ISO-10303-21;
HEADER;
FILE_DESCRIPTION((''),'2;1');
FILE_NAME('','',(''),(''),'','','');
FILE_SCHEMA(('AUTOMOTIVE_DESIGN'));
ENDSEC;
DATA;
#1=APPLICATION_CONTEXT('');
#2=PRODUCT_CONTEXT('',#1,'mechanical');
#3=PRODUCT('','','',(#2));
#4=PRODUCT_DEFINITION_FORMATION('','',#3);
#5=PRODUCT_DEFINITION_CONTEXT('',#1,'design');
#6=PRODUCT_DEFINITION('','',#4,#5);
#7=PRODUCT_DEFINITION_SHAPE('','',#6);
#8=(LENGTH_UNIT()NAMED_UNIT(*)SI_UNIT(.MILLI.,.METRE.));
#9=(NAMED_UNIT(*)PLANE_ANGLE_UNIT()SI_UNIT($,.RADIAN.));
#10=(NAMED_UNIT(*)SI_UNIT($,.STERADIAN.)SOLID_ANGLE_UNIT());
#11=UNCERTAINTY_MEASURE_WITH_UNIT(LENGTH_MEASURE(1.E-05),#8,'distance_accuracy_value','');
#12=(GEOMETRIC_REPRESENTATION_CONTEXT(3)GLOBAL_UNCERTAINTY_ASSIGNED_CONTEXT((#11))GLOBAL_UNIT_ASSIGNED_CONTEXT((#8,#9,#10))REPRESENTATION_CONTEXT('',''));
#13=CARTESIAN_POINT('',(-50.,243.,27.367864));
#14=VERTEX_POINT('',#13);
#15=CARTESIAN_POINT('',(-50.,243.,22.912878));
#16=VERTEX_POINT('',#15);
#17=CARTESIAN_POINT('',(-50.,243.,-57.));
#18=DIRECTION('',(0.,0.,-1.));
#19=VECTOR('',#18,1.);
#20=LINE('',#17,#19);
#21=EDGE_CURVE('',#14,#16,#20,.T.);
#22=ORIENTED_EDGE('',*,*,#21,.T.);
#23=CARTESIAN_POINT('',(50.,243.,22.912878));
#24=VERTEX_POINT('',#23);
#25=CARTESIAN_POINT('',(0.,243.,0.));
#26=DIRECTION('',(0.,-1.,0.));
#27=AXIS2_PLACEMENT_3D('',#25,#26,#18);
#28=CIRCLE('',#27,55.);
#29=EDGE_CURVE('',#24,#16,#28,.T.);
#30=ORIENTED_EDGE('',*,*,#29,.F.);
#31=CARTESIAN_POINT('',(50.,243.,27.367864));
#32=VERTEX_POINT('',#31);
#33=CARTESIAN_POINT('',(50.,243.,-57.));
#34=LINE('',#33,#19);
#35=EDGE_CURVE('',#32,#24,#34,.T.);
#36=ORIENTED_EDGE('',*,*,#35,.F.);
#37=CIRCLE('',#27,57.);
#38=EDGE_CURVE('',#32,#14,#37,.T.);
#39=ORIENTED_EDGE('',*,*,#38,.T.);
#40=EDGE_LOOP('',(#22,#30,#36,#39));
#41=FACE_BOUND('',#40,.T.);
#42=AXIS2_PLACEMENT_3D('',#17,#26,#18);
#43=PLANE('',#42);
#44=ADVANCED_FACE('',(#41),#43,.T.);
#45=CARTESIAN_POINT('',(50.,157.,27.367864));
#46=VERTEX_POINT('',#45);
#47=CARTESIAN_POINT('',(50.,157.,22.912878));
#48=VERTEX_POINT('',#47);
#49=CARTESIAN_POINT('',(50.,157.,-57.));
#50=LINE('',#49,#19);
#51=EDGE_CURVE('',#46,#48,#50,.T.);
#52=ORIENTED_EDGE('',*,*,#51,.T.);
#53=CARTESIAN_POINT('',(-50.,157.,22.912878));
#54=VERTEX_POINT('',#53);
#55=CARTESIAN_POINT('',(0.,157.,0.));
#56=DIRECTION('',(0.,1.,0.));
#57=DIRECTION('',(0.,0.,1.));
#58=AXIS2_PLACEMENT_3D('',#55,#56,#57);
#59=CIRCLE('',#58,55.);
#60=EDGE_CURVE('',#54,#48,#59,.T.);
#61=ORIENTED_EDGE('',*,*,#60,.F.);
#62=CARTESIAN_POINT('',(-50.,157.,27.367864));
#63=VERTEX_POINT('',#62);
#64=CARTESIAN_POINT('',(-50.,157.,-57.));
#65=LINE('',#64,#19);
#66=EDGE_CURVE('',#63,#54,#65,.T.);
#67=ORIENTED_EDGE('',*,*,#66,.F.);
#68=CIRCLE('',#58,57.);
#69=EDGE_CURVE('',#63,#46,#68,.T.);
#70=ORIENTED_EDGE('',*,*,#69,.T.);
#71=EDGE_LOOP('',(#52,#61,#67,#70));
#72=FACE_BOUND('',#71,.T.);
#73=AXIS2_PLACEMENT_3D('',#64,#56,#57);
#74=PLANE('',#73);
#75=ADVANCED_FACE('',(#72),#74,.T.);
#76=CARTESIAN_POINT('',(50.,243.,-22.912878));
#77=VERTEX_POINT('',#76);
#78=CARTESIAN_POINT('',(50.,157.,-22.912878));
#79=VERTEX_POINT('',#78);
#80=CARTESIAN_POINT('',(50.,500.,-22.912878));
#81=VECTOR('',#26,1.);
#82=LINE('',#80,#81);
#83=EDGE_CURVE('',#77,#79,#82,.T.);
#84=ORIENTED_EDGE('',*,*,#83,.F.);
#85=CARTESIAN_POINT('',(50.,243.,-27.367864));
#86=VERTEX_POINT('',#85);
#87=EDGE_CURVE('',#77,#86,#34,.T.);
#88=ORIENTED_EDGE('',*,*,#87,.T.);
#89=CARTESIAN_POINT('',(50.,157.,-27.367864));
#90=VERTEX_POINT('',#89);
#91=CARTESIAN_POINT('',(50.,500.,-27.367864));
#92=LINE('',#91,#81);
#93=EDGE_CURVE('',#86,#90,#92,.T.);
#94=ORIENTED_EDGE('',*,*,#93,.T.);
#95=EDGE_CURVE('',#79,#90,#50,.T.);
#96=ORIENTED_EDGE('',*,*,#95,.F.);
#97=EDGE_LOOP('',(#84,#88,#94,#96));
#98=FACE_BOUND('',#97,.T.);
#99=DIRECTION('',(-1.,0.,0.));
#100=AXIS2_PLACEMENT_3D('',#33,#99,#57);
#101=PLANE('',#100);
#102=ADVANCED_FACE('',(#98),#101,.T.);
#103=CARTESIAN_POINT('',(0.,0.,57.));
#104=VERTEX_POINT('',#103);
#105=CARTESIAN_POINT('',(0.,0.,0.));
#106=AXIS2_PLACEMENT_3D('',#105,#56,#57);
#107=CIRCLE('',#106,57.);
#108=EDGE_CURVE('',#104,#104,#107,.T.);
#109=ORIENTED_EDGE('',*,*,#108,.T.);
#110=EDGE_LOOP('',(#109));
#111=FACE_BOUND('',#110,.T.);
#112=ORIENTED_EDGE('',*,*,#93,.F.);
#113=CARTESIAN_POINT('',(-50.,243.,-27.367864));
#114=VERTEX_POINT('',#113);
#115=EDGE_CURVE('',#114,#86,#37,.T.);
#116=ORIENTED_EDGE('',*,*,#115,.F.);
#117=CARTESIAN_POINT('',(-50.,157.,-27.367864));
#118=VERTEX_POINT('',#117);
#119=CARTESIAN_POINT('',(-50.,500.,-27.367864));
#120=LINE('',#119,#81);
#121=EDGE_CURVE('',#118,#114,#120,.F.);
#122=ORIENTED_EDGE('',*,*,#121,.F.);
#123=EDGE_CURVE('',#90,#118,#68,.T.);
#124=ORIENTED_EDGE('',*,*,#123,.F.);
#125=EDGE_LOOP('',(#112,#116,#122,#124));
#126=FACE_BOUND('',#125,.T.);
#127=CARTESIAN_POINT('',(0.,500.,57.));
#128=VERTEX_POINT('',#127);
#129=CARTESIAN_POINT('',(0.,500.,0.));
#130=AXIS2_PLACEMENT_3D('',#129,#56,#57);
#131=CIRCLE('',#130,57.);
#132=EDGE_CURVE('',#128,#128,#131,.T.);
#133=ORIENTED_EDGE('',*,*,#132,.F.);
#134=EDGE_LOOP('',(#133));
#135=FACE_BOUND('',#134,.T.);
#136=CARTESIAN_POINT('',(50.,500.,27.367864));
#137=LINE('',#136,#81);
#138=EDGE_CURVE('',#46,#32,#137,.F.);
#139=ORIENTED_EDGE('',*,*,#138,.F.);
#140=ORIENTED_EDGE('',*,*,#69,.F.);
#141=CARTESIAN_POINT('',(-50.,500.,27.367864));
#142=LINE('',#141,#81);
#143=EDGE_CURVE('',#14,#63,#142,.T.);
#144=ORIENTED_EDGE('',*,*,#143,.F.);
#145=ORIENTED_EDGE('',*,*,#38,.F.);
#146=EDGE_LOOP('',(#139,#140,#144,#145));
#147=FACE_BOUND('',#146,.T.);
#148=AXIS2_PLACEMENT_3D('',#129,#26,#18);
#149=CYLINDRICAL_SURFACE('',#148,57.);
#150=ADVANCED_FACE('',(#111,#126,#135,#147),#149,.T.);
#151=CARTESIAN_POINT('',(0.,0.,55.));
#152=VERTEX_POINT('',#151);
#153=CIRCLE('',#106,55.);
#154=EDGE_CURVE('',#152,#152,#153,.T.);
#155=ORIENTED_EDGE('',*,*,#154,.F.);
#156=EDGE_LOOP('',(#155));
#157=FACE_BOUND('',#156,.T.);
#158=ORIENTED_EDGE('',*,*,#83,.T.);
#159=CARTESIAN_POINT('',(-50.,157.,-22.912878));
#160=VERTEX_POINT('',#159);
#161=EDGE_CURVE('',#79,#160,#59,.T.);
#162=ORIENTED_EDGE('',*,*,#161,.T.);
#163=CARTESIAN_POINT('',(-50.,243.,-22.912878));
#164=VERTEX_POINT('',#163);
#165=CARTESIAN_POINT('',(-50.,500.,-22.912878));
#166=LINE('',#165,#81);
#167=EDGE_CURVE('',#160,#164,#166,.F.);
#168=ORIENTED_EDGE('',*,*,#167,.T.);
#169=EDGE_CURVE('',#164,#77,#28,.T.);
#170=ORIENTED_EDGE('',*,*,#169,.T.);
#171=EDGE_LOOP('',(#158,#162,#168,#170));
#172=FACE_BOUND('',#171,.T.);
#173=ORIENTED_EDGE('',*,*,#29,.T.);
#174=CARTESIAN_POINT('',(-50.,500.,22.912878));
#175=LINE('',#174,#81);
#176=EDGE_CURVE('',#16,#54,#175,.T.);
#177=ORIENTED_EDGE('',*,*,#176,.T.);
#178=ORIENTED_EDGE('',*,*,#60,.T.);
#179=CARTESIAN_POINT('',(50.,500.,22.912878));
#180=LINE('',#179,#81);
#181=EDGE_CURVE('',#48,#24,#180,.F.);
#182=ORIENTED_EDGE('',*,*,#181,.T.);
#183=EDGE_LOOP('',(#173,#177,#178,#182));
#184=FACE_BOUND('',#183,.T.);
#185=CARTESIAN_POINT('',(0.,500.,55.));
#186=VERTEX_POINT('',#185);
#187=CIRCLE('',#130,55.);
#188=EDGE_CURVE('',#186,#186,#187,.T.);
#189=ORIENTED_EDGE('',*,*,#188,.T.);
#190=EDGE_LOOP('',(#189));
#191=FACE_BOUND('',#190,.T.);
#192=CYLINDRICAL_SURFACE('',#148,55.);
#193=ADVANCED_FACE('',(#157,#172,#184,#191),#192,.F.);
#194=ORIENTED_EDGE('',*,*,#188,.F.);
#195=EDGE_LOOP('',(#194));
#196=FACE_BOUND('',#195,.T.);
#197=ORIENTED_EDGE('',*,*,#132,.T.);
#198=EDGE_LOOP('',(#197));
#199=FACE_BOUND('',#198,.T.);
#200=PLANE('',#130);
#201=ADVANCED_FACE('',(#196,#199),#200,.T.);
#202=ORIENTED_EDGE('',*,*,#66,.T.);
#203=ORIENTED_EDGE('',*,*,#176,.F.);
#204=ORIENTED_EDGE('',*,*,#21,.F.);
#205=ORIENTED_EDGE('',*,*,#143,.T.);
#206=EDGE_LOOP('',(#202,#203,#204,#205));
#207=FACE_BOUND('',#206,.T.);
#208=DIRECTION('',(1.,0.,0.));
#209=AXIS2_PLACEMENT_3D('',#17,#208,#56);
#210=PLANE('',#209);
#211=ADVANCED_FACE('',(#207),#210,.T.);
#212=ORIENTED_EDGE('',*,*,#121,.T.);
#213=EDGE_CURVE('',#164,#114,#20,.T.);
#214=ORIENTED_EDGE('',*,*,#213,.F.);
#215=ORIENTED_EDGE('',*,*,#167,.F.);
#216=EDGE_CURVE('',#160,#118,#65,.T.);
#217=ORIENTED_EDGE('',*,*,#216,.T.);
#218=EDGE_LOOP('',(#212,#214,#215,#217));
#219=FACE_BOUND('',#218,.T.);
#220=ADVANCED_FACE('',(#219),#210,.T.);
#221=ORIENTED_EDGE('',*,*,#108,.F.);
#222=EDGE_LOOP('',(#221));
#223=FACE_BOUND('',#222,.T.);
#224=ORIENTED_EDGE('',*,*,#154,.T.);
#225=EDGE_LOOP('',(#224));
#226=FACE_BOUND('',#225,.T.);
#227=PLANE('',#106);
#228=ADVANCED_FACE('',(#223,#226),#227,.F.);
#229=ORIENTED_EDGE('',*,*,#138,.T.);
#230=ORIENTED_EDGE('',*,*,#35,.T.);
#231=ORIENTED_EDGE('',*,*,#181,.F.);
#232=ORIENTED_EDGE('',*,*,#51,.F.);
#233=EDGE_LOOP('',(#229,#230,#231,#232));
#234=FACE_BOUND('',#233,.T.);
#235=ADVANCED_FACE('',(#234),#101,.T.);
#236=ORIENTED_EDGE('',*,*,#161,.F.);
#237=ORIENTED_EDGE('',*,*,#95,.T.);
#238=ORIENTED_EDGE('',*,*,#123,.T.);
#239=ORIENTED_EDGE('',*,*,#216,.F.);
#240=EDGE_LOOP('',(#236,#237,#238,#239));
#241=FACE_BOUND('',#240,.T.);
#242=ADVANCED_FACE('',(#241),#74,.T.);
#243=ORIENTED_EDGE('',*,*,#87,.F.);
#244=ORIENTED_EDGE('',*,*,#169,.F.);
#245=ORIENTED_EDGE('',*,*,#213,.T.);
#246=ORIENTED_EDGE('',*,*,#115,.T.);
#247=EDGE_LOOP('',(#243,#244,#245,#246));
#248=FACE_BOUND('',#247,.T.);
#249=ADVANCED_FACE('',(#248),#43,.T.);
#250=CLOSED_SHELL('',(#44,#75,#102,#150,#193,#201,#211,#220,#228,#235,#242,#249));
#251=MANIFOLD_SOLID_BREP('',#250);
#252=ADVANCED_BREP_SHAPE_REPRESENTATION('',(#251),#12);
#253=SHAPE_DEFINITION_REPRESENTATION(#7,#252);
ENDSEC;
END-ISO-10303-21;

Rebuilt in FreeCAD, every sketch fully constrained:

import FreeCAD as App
import Part
import Sketcher
Q = App.Units.Quantity


def add_polygon(sketch, points):
    """Adds a closed chain of lines whose ends are joined by coincident constraints."""
    first, n = sketch.GeometryCount, len(points)
    for a, b in zip(points, points[1:] + points[:1]):
        sketch.addGeometry(Part.LineSegment(App.Vector(*a, 0), App.Vector(*b, 0)), False)
    for i in range(n):
        sketch.addConstraint(Sketcher.Constraint("Coincident", first + i, 2, first + (i + 1) % n, 1))

doc = App.newDocument("Part")
body = doc.addObject("PartDesign::Body", "Body")

# Sketch on XZ plane
sketch1 = body.newObject("Sketcher::SketchObject", "Sketch")
sketch1.AttachmentSupport = (doc.getObject("XZ_Plane"), [""])
sketch1.MapMode = "FlatFace"
sketch1.addGeometry(Part.Circle(App.Vector(0, 0, 0), App.Vector(0, 0, 1), 57), False)
sketch1.addGeometry(Part.Circle(App.Vector(0, 0, 0), App.Vector(0, 0, 1), 55), False)
sketch1.addConstraint(Sketcher.Constraint("Coincident", 0, 3, -1, 1))
sketch1.addConstraint(Sketcher.Constraint("Coincident", 1, 3, -1, 1))
sketch1.addConstraint(Sketcher.Constraint("Diameter", 0, Q("114 mm")))
sketch1.addConstraint(Sketcher.Constraint("Diameter", 1, Q("110 mm")))
pad1 = body.newObject("PartDesign::Pad", "Pad")
pad1.Profile = sketch1
pad1.Length = 500
pad1.Reversed = True

# Sketch on XY plane
sketch2 = body.newObject("Sketcher::SketchObject", "Sketch001")
sketch2.AttachmentSupport = (doc.getObject("XY_Plane"), [""])
sketch2.MapMode = "FlatFace"
sketch2.AttachmentOffset = App.Placement(App.Vector(0, 0, -468.114351), App.Rotation())
add_polygon(sketch2, [(-50, 243), (-50, 157), (50, 157), (50, 243)])  # lines 0-3
sketch2.addConstraint(Sketcher.Constraint("Vertical", 0))
sketch2.addConstraint(Sketcher.Constraint("Horizontal", 1))
sketch2.addConstraint(Sketcher.Constraint("Vertical", 2))
sketch2.addConstraint(Sketcher.Constraint("Horizontal", 3))
sketch2.addConstraint(Sketcher.Constraint("DistanceX", 1, 1, 1, 2, Q("100 mm")))
sketch2.addConstraint(Sketcher.Constraint("DistanceY", 0, 2, 0, 1, Q("86 mm")))
sketch2.addConstraint(Sketcher.Constraint("DistanceX", 0, 2, -1, 1, Q("50 mm")))
sketch2.addConstraint(Sketcher.Constraint("DistanceY", -1, 1, 0, 2, Q("157 mm")))
pocket1 = body.newObject("PartDesign::Pocket", "Pocket")
pocket1.Profile = sketch2
pocket1.Type = "ThroughAll"
pocket1.Midplane = True

doc.recompute()
